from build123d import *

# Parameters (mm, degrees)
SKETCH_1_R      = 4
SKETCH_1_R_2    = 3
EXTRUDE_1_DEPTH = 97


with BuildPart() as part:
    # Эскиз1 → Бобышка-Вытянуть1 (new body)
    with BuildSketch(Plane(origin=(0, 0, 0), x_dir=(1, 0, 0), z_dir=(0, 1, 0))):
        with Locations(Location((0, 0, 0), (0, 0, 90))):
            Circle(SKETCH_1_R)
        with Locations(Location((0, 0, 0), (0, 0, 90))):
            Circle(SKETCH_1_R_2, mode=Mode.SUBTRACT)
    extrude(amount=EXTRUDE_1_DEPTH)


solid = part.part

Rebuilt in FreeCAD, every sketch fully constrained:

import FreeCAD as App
import Part
import Sketcher
from FreeCAD import Vector
Q = App.Units.Quantity

doc = App.newDocument("Part")
params = doc.addObject("Spreadsheet::Sheet", "Params")
for row, (alias, value) in enumerate([
    ("sketch1_diameter", "8 mm"),
    ("sketch1_diameter2", "6 mm"),
    ("pad1_length", "97 mm"),
], start=1):
    params.set(f"A{row}", alias)
    params.set(f"B{row}", "=" + value)
    params.setAlias(f"B{row}", alias)

body = doc.addObject("PartDesign::Body", "Body")

sketch1 = body.newObject("Sketcher::SketchObject", "Sketch")
sketch1.AttachmentSupport = (doc.getObject("XZ_Plane"), [""])
sketch1.MapMode = "FlatFace"
sketch1.addGeometry(Part.Circle(Vector(0, 0, 0), Vector(0, 0, 1), 4), False)
sketch1.addGeometry(Part.Circle(Vector(0, 0, 0), Vector(0, 0, 1), 3), False)
sketch1.addConstraint(Sketcher.Constraint("Coincident", 0, 3, -1, 1))
sketch1.addConstraint(Sketcher.Constraint("Coincident", 1, 3, -1, 1))
sketch1.addConstraint(Sketcher.Constraint("Diameter", 0, Q("8 mm")))
sketch1.addConstraint(Sketcher.Constraint("Diameter", 1, Q("6 mm")))
sketch1.setExpression("Constraints[2]", "Params.sketch1_diameter")
sketch1.setExpression("Constraints[3]", "Params.sketch1_diameter2")
pad1 = body.newObject("PartDesign::Pad", "Pad")
pad1.Profile = sketch1
pad1.setExpression("Length", "Params.pad1_length")
pad1.Reversed = True

doc.recompute()
